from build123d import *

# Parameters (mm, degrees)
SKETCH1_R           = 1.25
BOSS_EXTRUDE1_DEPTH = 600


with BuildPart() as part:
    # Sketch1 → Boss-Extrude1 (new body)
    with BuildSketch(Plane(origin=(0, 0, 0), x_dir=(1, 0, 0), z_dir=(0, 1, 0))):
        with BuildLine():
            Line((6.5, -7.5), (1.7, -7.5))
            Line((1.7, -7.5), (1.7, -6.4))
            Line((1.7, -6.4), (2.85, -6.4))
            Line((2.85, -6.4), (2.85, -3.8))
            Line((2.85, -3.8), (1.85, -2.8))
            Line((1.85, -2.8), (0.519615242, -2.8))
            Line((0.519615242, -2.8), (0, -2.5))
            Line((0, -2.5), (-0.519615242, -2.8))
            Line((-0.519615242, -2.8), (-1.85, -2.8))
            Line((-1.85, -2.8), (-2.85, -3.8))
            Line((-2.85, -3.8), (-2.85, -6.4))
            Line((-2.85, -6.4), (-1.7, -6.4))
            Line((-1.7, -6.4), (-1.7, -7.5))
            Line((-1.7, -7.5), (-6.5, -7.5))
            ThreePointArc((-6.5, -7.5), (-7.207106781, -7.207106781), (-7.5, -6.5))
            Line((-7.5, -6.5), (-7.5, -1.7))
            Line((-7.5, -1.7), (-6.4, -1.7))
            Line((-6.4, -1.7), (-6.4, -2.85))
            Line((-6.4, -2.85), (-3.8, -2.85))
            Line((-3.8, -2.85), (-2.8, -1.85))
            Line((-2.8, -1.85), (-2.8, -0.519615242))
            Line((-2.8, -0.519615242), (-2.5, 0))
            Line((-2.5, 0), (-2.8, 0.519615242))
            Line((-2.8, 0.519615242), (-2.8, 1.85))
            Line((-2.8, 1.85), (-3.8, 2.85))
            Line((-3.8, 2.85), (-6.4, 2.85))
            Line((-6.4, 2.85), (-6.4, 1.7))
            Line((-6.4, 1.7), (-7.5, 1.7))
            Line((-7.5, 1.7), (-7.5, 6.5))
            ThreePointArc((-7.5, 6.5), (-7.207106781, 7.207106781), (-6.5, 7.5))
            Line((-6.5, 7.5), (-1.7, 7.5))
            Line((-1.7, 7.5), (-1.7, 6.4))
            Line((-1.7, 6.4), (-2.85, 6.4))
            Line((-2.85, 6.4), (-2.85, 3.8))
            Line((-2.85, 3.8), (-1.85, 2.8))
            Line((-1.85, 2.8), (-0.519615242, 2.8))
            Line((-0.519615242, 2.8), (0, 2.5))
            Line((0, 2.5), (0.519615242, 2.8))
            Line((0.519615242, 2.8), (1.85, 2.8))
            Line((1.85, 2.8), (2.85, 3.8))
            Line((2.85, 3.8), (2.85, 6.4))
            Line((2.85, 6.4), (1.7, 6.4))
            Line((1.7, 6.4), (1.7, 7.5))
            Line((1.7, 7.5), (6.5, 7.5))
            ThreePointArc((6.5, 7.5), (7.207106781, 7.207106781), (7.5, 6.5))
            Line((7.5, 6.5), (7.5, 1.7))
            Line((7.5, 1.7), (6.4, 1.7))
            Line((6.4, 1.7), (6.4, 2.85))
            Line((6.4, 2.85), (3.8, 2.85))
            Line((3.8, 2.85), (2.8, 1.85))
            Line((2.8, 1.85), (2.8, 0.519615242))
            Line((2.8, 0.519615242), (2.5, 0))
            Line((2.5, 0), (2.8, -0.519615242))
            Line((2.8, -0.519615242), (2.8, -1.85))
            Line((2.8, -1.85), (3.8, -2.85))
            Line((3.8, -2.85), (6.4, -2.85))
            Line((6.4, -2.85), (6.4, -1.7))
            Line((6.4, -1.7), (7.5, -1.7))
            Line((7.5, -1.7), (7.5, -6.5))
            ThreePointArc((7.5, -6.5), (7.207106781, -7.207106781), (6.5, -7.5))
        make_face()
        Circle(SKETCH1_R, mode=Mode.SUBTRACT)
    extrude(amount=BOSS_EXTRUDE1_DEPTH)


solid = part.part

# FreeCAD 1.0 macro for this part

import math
import FreeCAD as App
import Part
import Sketcher
from FreeCAD import Vector
Q = App.Units.Quantity

doc = App.newDocument("Part")
params = doc.addObject("Spreadsheet::Sheet", "Params")
for row, (alias, value) in enumerate([
    ("sketch1_radius", "1 mm"),
    ("sketch1_diameter", "2.5 mm"),
    ("sketch1_width", "4.8 mm"),
    ("sketch1_width2", "1.1 mm"),
    ("sketch1_width3", "2.6 mm"),
    ("pad1_length", "600 mm"),
], start=1):
    params.set(f"A{row}", alias)
    params.set(f"B{row}", "=" + value)
    params.setAlias(f"B{row}", alias)

body = doc.addObject("PartDesign::Body", "Body")

# Sketch on XZ plane
sketch1 = doc.addObject("Sketcher::SketchObject", "Sketch")
body.addObject(sketch1)
sketch1.AttachmentSupport = (doc.XZ_Plane, [""])
sketch1.MapMode = "FlatFace"
sketch1.addGeometry(Part.LineSegment(Vector(1.7, 7.5, 0), Vector(6.5, 7.5, 0)), False)
sketch1.addGeometry(Part.ArcOfCircle(Part.Circle(Vector(6.5, 6.5, 0), Vector(0, 0, 1), 1), math.radians(0), math.radians(90)), False)
sketch1.addGeometry(Part.LineSegment(Vector(7.5, 6.5, 0), Vector(7.5, 1.7, 0)), False)
sketch1.addGeometry(Part.LineSegment(Vector(7.5, 1.7, 0), Vector(6.4, 1.7, 0)), False)
sketch1.addGeometry(Part.LineSegment(Vector(6.4, 1.7, 0), Vector(6.4, 2.85, 0)), False)
sketch1.addGeometry(Part.LineSegment(Vector(6.4, 2.85, 0), Vector(3.8, 2.85, 0)), False)
sketch1.addGeometry(Part.LineSegment(Vector(3.8, 2.85, 0), Vector(2.8, 1.85, 0)), False)
sketch1.addGeometry(Part.LineSegment(Vector(2.8, 1.85, 0), Vector(2.8, 0.519615, 0)), False)
sketch1.addGeometry(Part.LineSegment(Vector(2.8, 0.519615, 0), Vector(2.5, 0, 0)), False)
sketch1.addGeometry(Part.LineSegment(Vector(2.5, 0, 0), Vector(2.8, -0.519615, 0)), False)
sketch1.addGeometry(Part.LineSegment(Vector(2.8, -0.519615, 0), Vector(2.8, -1.85, 0)), False)
sketch1.addGeometry(Part.LineSegment(Vector(2.8, -1.85, 0), Vector(3.8, -2.85, 0)), False)
sketch1.addGeometry(Part.LineSegment(Vector(3.8, -2.85, 0), Vector(6.4, -2.85, 0)), False)
sketch1.addGeometry(Part.LineSegment(Vector(6.4, -2.85, 0), Vector(6.4, -1.7, 0)), False)
sketch1.addGeometry(Part.LineSegment(Vector(6.4, -1.7, 0), Vector(7.5, -1.7, 0)), False)
sketch1.addGeometry(Part.LineSegment(Vector(7.5, -1.7, 0), Vector(7.5, -6.5, 0)), False)
sketch1.addGeometry(Part.ArcOfCircle(Part.Circle(Vector(6.5, -6.5, 0), Vector(0, 0, 1), 1), math.radians(-90), math.radians(0)), False)
sketch1.addGeometry(Part.LineSegment(Vector(6.5, -7.5, 0), Vector(1.7, -7.5, 0)), False)
sketch1.addGeometry(Part.LineSegment(Vector(1.7, -7.5, 0), Vector(1.7, -6.4, 0)), False)
sketch1.addGeometry(Part.LineSegment(Vector(1.7, -6.4, 0), Vector(2.85, -6.4, 0)), False)
sketch1.addGeometry(Part.LineSegment(Vector(2.85, -6.4, 0), Vector(2.85, -3.8, 0)), False)
sketch1.addGeometry(Part.LineSegment(Vector(2.85, -3.8, 0), Vector(1.85, -2.8, 0)), False)
sketch1.addGeometry(Part.LineSegment(Vector(1.85, -2.8, 0), Vector(0.519615, -2.8, 0)), False)
sketch1.addGeometry(Part.LineSegment(Vector(0.519615, -2.8, 0), Vector(0, -2.5, 0)), False)
sketch1.addGeometry(Part.LineSegment(Vector(0, -2.5, 0), Vector(-0.519615, -2.8, 0)), False)
sketch1.addGeometry(Part.LineSegment(Vector(-0.519615, -2.8, 0), Vector(-1.85, -2.8, 0)), False)
sketch1.addGeometry(Part.LineSegment(Vector(-1.85, -2.8, 0), Vector(-2.85, -3.8, 0)), False)
sketch1.addGeometry(Part.LineSegment(Vector(-2.85, -3.8, 0), Vector(-2.85, -6.4, 0)), False)
sketch1.addGeometry(Part.LineSegment(Vector(-2.85, -6.4, 0), Vector(-1.7, -6.4, 0)), False)
sketch1.addGeometry(Part.LineSegment(Vector(-1.7, -6.4, 0), Vector(-1.7, -7.5, 0)), False)
sketch1.addGeometry(Part.LineSegment(Vector(-1.7, -7.5, 0), Vector(-6.5, -7.5, 0)), False)
sketch1.addGeometry(Part.ArcOfCircle(Part.Circle(Vector(-6.5, -6.5, 0), Vector(0, 0, 1), 1), math.radians(-180), math.radians(-90)), False)
sketch1.addGeometry(Part.LineSegment(Vector(-7.5, -6.5, 0), Vector(-7.5, -1.7, 0)), False)
sketch1.addGeometry(Part.LineSegment(Vector(-7.5, -1.7, 0), Vector(-6.4, -1.7, 0)), False)
sketch1.addGeometry(Part.LineSegment(Vector(-6.4, -1.7, 0), Vector(-6.4, -2.85, 0)), False)
sketch1.addGeometry(Part.LineSegment(Vector(-6.4, -2.85, 0), Vector(-3.8, -2.85, 0)), False)
sketch1.addGeometry(Part.LineSegment(Vector(-3.8, -2.85, 0), Vector(-2.8, -1.85, 0)), False)
sketch1.addGeometry(Part.LineSegment(Vector(-2.8, -1.85, 0), Vector(-2.8, -0.519615, 0)), False)
sketch1.addGeometry(Part.LineSegment(Vector(-2.8, -0.519615, 0), Vector(-2.5, 0, 0)), False)
sketch1.addGeometry(Part.LineSegment(Vector(-2.5, 0, 0), Vector(-2.8, 0.519615, 0)), False)
sketch1.addGeometry(Part.LineSegment(Vector(-2.8, 0.519615, 0), Vector(-2.8, 1.85, 0)), False)
sketch1.addGeometry(Part.LineSegment(Vector(-2.8, 1.85, 0), Vector(-3.8, 2.85, 0)), False)
sketch1.addGeometry(Part.LineSegment(Vector(-3.8, 2.85, 0), Vector(-6.4, 2.85, 0)), False)
sketch1.addGeometry(Part.LineSegment(Vector(-6.4, 2.85, 0), Vector(-6.4, 1.7, 0)), False)
sketch1.addGeometry(Part.LineSegment(Vector(-6.4, 1.7, 0), Vector(-7.5, 1.7, 0)), False)
sketch1.addGeometry(Part.LineSegment(Vector(-7.5, 1.7, 0), Vector(-7.5, 6.5, 0)), False)
sketch1.addGeometry(Part.ArcOfCircle(Part.Circle(Vector(-6.5, 6.5, 0), Vector(0, 0, 1), 1), math.radians(90), math.radians(180)), False)
sketch1.addGeometry(Part.LineSegment(Vector(-6.5, 7.5, 0), Vector(-1.7, 7.5, 0)), False)
sketch1.addGeometry(Part.LineSegment(Vector(-1.7, 7.5, 0), Vector(-1.7, 6.4, 0)), False)
sketch1.addGeometry(Part.LineSegment(Vector(-1.7, 6.4, 0), Vector(-2.85, 6.4, 0)), False)
sketch1.addGeometry(Part.LineSegment(Vector(-2.85, 6.4, 0), Vector(-2.85, 3.8, 0)), False)
sketch1.addGeometry(Part.LineSegment(Vector(-2.85, 3.8, 0), Vector(-1.85, 2.8, 0)), False)
sketch1.addGeometry(Part.LineSegment(Vector(-1.85, 2.8, 0), Vector(-0.519615, 2.8, 0)), False)
sketch1.addGeometry(Part.LineSegment(Vector(-0.519615, 2.8, 0), Vector(0, 2.5, 0)), False)
sketch1.addGeometry(Part.LineSegment(Vector(0, 2.5, 0), Vector(0.519615, 2.8, 0)), False)
sketch1.addGeometry(Part.LineSegment(Vector(0.519615, 2.8, 0), Vector(1.85, 2.8, 0)), False)
sketch1.addGeometry(Part.LineSegment(Vector(1.85, 2.8, 0), Vector(2.85, 3.8, 0)), False)
sketch1.addGeometry(Part.LineSegment(Vector(2.85, 3.8, 0), Vector(2.85, 6.4, 0)), False)
sketch1.addGeometry(Part.LineSegment(Vector(2.85, 6.4, 0), Vector(1.7, 6.4, 0)), False)
sketch1.addGeometry(Part.LineSegment(Vector(1.7, 6.4, 0), Vector(1.7, 7.5, 0)), False)
sketch1.addGeometry(Part.Circle(Vector(0, 0, 0), Vector(0, 0, 1), 1.25), False)
sketch1.addConstraint(Sketcher.Constraint("Tangent", 0, 2, 1, 2))
sketch1.addConstraint(Sketcher.Constraint("Tangent", 1, 1, 2, 1))
sketch1.addConstraint(Sketcher.Constraint("Coincident", 2, 2, 3, 1))
sketch1.addConstraint(Sketcher.Constraint("Coincident", 3, 2, 4, 1))
sketch1.addConstraint(Sketcher.Constraint("Coincident", 4, 2, 5, 1))
sketch1.addConstraint(Sketcher.Constraint("Coincident", 5, 2, 6, 1))
sketch1.addConstraint(Sketcher.Constraint("Coincident", 6, 2, 7, 1))
sketch1.addConstraint(Sketcher.Constraint("Coincident", 7, 2, 8, 1))
sketch1.addConstraint(Sketcher.Constraint("Coincident", 8, 2, 9, 1))
sketch1.addConstraint(Sketcher.Constraint("Coincident", 9, 2, 10, 1))
sketch1.addConstraint(Sketcher.Constraint("Coincident", 10, 2, 11, 1))
sketch1.addConstraint(Sketcher.Constraint("Coincident", 11, 2, 12, 1))
sketch1.addConstraint(Sketcher.Constraint("Coincident", 12, 2, 13, 1))
sketch1.addConstraint(Sketcher.Constraint("Coincident", 13, 2, 14, 1))
sketch1.addConstraint(Sketcher.Constraint("Coincident", 14, 2, 15, 1))
sketch1.addConstraint(Sketcher.Constraint("Tangent", 15, 2, 16, 2))
sketch1.addConstraint(Sketcher.Constraint("Tangent", 16, 1, 17, 1))
sketch1.addConstraint(Sketcher.Constraint("Coincident", 17, 2, 18, 1))
sketch1.addConstraint(Sketcher.Constraint("Coincident", 18, 2, 19, 1))
sketch1.addConstraint(Sketcher.Constraint("Coincident", 19, 2, 20, 1))
sketch1.addConstraint(Sketcher.Constraint("Coincident", 20, 2, 21, 1))
sketch1.addConstraint(Sketcher.Constraint("Coincident", 21, 2, 22, 1))
sketch1.addConstraint(Sketcher.Constraint("Coincident", 22, 2, 23, 1))
sketch1.addConstraint(Sketcher.Constraint("Coincident", 23, 2, 24, 1))
sketch1.addConstraint(Sketcher.Constraint("Coincident", 24, 2, 25, 1))
sketch1.addConstraint(Sketcher.Constraint("Coincident", 25, 2, 26, 1))
sketch1.addConstraint(Sketcher.Constraint("Coincident", 26, 2, 27, 1))
sketch1.addConstraint(Sketcher.Constraint("Coincident", 27, 2, 28, 1))
sketch1.addConstraint(Sketcher.Constraint("Coincident", 28, 2, 29, 1))
sketch1.addConstraint(Sketcher.Constraint("Coincident", 29, 2, 30, 1))
sketch1.addConstraint(Sketcher.Constraint("Tangent", 30, 2, 31, 2))
sketch1.addConstraint(Sketcher.Constraint("Tangent", 31, 1, 32, 1))
sketch1.addConstraint(Sketcher.Constraint("Coincident", 32, 2, 33, 1))
sketch1.addConstraint(Sketcher.Constraint("Coincident", 33, 2, 34, 1))
sketch1.addConstraint(Sketcher.Constraint("Coincident", 34, 2, 35, 1))
sketch1.addConstraint(Sketcher.Constraint("Coincident", 35, 2, 36, 1))
sketch1.addConstraint(Sketcher.Constraint("Coincident", 36, 2, 37, 1))
sketch1.addConstraint(Sketcher.Constraint("Coincident", 37, 2, 38, 1))
sketch1.addConstraint(Sketcher.Constraint("Coincident", 38, 2, 39, 1))
sketch1.addConstraint(Sketcher.Constraint("Coincident", 39, 2, 40, 1))
sketch1.addConstraint(Sketcher.Constraint("Coincident", 40, 2, 41, 1))
sketch1.addConstraint(Sketcher.Constraint("Coincident", 41, 2, 42, 1))
sketch1.addConstraint(Sketcher.Constraint("Coincident", 42, 2, 43, 1))
sketch1.addConstraint(Sketcher.Constraint("Coincident", 43, 2, 44, 1))
sketch1.addConstraint(Sketcher.Constraint("Coincident", 44, 2, 45, 1))
sketch1.addConstraint(Sketcher.Constraint("Tangent", 45, 2, 46, 2))
sketch1.addConstraint(Sketcher.Constraint("Tangent", 46, 1, 47, 1))
sketch1.addConstraint(Sketcher.Constraint("Coincident", 47, 2, 48, 1))
sketch1.addConstraint(Sketcher.Constraint("Coincident", 48, 2, 49, 1))
sketch1.addConstraint(Sketcher.Constraint("Coincident", 49, 2, 50, 1))
sketch1.addConstraint(Sketcher.Constraint("Coincident", 50, 2, 51, 1))
sketch1.addConstraint(Sketcher.Constraint("Coincident", 51, 2, 52, 1))
sketch1.addConstraint(Sketcher.Constraint("Coincident", 52, 2, 53, 1))
sketch1.addConstraint(Sketcher.Constraint("Coincident", 53, 2, 54, 1))
sketch1.addConstraint(Sketcher.Constraint("Coincident", 54, 2, 55, 1))
sketch1.addConstraint(Sketcher.Constraint("Coincident", 55, 2, 56, 1))
sketch1.addConstraint(Sketcher.Constraint("Coincident", 56, 2, 57, 1))
sketch1.addConstraint(Sketcher.Constraint("Coincident", 57, 2, 58, 1))
sketch1.addConstraint(Sketcher.Constraint("Coincident", 58, 2, 59, 1))
sketch1.addConstraint(Sketcher.Constraint("Coincident", 59, 2, 0, 1))
sketch1.addConstraint(Sketcher.Constraint("Horizontal", 0))
sketch1.addConstraint(Sketcher.Constraint("Vertical", 2))
sketch1.addConstraint(Sketcher.Constraint("Horizontal", 3))
sketch1.addConstraint(Sketcher.Constraint("Vertical", 4))
sketch1.addConstraint(Sketcher.Constraint("Horizontal", 5))
sketch1.addConstraint(Sketcher.Constraint("Vertical", 7))
sketch1.addConstraint(Sketcher.Constraint("Vertical", 10))
sketch1.addConstraint(Sketcher.Constraint("Horizontal", 12))
sketch1.addConstraint(Sketcher.Constraint("Vertical", 13))
sketch1.addConstraint(Sketcher.Constraint("Horizontal", 14))
sketch1.addConstraint(Sketcher.Constraint("Vertical", 15))
sketch1.addConstraint(Sketcher.Constraint("Horizontal", 17))
sketch1.addConstraint(Sketcher.Constraint("Vertical", 18))
sketch1.addConstraint(Sketcher.Constraint("Horizontal", 19))
sketch1.addConstraint(Sketcher.Constraint("Vertical", 20))
sketch1.addConstraint(Sketcher.Constraint("Horizontal", 22))
sketch1.addConstraint(Sketcher.Constraint("Horizontal", 25))
sketch1.addConstraint(Sketcher.Constraint("Vertical", 27))
sketch1.addConstraint(Sketcher.Constraint("Horizontal", 28))
sketch1.addConstraint(Sketcher.Constraint("Vertical", 29))
sketch1.addConstraint(Sketcher.Constraint("Horizontal", 30))
sketch1.addConstraint(Sketcher.Constraint("Vertical", 32))
sketch1.addConstraint(Sketcher.Constraint("Horizontal", 33))
sketch1.addConstraint(Sketcher.Constraint("Vertical", 34))
sketch1.addConstraint(Sketcher.Constraint("Horizontal", 35))
sketch1.addConstraint(Sketcher.Constraint("Vertical", 37))
sketch1.addConstraint(Sketcher.Constraint("Vertical", 40))
sketch1.addConstraint(Sketcher.Constraint("Horizontal", 42))
sketch1.addConstraint(Sketcher.Constraint("Vertical", 43))
sketch1.addConstraint(Sketcher.Constraint("Horizontal", 44))
sketch1.addConstraint(Sketcher.Constraint("Vertical", 45))
sketch1.addConstraint(Sketcher.Constraint("Horizontal", 47))
sketch1.addConstraint(Sketcher.Constraint("Vertical", 48))
sketch1.addConstraint(Sketcher.Constraint("Horizontal", 49))
sketch1.addConstraint(Sketcher.Constraint("Vertical", 50))
sketch1.addConstraint(Sketcher.Constraint("Horizontal", 52))
sketch1.addConstraint(Sketcher.Constraint("Horizontal", 55))
sketch1.addConstraint(Sketcher.Constraint("Vertical", 57))
sketch1.addConstraint(Sketcher.Constraint("Horizontal", 58))
sketch1.addConstraint(Sketcher.Constraint("Vertical", 59))
sketch1.addConstraint(Sketcher.Constraint("Coincident", 60, 3, -1, 1))
sketch1.addConstraint(Sketcher.Constraint("Equal", 1, 16))
sketch1.addConstraint(Sketcher.Constraint("Equal", 16, 31))
sketch1.addConstraint(Sketcher.Constraint("Equal", 31, 46))
sketch1.addConstraint(Sketcher.Constraint("Symmetric", 1, 3, 31, 3, -1, 1))
sketch1.addConstraint(Sketcher.Constraint("Symmetric", 16, 3, 46, 3, -1, 1))
sketch1.addConstraint(Sketcher.Constraint("Symmetric", 3, 2, 33, 2, -1, 1))
sketch1.addConstraint(Sketcher.Constraint("Symmetric", 5, 2, 35, 2, -1, 1))
sketch1.addConstraint(Sketcher.Constraint("Symmetric", 6, 2, 36, 2, -1, 1))
sketch1.addConstraint(Sketcher.Constraint("Symmetric", 8, 2, 38, 2, -1, 1))
sketch1.addConstraint(Sketcher.Constraint("Symmetric", 9, 2, 39, 2, -1, 1))
sketch1.addConstraint(Sketcher.Constraint("Symmetric", 11, 2, 41, 2, -1, 1))
sketch1.addConstraint(Sketcher.Constraint("Symmetric", 13, 2, 43, 2, -1, 1))
sketch1.addConstraint(Sketcher.Constraint("Symmetric", 18, 2, 48, 2, -1, 1))
sketch1.addConstraint(Sketcher.Constraint("Symmetric", 20, 2, 50, 2, -1, 1))
sketch1.addConstraint(Sketcher.Constraint("Symmetric", 21, 2, 51, 2, -1, 1))
sketch1.addConstraint(Sketcher.Constraint("Symmetric", 23, 2, 53, 2, -1, 1))
sketch1.addConstraint(Sketcher.Constraint("Symmetric", 24, 2, 54, 2, -1, 1))
sketch1.addConstraint(Sketcher.Constraint("Symmetric", 26, 2, 56, 2, -1, 1))
sketch1.addConstraint(Sketcher.Constraint("Symmetric", 28, 2, 58, 2, -1, 1))
sketch1.addConstraint(Sketcher.Constraint("Symmetric", 16, 3, 31, 3, -2))
sketch1.addConstraint(Sketcher.Constraint("Symmetric", 22, 2, 24, 2, -2))
sketch1.addConstraint(Sketcher.Constraint("Symmetric", 20, 2, 26, 2, -2))
sketch1.addConstraint(Sketcher.Constraint("Symmetric", 18, 2, 28, 2, -2))
sketch1.addConstraint(Sketcher.Constraint("Symmetric", 13, 2, 33, 2, -2))
sketch1.addConstraint(Sketcher.Constraint("Symmetric", 11, 2, 35, 2, -2))
sketch1.addConstraint(Sketcher.Constraint("Symmetric", 10, 2, 36, 2, -2))
sketch1.addConstraint(Sketcher.Constraint("PointOnObject", 8, 2, -1))
sketch1.addConstraint(Sketcher.Constraint("PointOnObject", 23, 2, -2))
sketch1.addConstraint(Sketcher.Constraint("Perpendicular", 6, 11))
sketch1.addConstraint(Sketcher.Constraint("Parallel", 11, 21))
sketch1.addConstraint(Sketcher.Constraint("Perpendicular", 8, 23))
sketch1.addConstraint(Sketcher.Constraint("Perpendicular", 9, 24))
sketch1.addConstraint(Sketcher.Constraint("Perpendicular", 21, 26))
sketch1.addConstraint(Sketcher.Constraint("Perpendicular", 23, 38))
sketch1.addConstraint(Sketcher.Constraint("Perpendicular", 36, 41))
sketch1.addConstraint(Sketcher.Constraint("Perpendicular", 38, 53))
sketch1.addConstraint(Sketcher.Constraint("Perpendicular", 51, 56))
sketch1.addConstraint(Sketcher.Constraint("Equal", 47, 2))
sketch1.addConstraint(Sketcher.Constraint("Equal", 58, 4))
sketch1.addConstraint(Sketcher.Constraint("Equal", 55, 7))
sketch1.addConstraint(Sketcher.Constraint("Equal", 44, 18))
sketch1.addConstraint(Sketcher.Constraint("Equal", 42, 20))
sketch1.addConstraint(Sketcher.Constraint("Equal", 11, 21))
sketch1.addConstraint(Sketcher.Constraint("Equal", 9, 23))
sketch1.addConstraint(Sketcher.Constraint("Radius", 1, Q("1 mm")))
sketch1.addConstraint(Sketcher.Constraint("Diameter", 60, Q("2.5 mm")))
sketch1.addConstraint(Sketcher.Constraint("Angle", 8, Q("-120 deg")))
sketch1.addConstraint(Sketcher.Constraint("DistanceX", 0, 1, 0, 2, Q("4.8 mm")))
sketch1.addConstraint(Sketcher.Constraint("DistanceX", 3, 2, 3, 1, Q("1.1 mm")))
sketch1.addConstraint(Sketcher.Constraint("DistanceX", 5, 2, 5, 1, Q("2.6 mm")))
sketch1.addConstraint(Sketcher.Constraint("Distance", 8, Q("0.6 mm")))
sketch1.addConstraint(Sketcher.Constraint("DistanceX", 19, 1, 19, 2, Q("1.15 mm")))
sketch1.addConstraint(Sketcher.Constraint("DistanceX", -1, 1, 1, 3, Q("6.5 mm")))
sketch1.addConstraint(Sketcher.Constraint("DistanceX", -1, 1, 6, 2, Q("2.8 mm")))
sketch1.setExpression("Constraints[145]", "Params.sketch1_radius")
sketch1.setExpression("Constraints[146]", "Params.sketch1_diameter")
sketch1.setExpression("Constraints[148]", "Params.sketch1_width")
sketch1.setExpression("Constraints[149]", "Params.sketch1_width2")
sketch1.setExpression("Constraints[150]", "Params.sketch1_width3")
pad1 = doc.addObject("PartDesign::Pad", "Pad")
body.addObject(pad1)
pad1.Profile = sketch1
pad1.setExpression("Length", "Params.pad1_length")
pad1.Reversed = True

doc.recompute()
